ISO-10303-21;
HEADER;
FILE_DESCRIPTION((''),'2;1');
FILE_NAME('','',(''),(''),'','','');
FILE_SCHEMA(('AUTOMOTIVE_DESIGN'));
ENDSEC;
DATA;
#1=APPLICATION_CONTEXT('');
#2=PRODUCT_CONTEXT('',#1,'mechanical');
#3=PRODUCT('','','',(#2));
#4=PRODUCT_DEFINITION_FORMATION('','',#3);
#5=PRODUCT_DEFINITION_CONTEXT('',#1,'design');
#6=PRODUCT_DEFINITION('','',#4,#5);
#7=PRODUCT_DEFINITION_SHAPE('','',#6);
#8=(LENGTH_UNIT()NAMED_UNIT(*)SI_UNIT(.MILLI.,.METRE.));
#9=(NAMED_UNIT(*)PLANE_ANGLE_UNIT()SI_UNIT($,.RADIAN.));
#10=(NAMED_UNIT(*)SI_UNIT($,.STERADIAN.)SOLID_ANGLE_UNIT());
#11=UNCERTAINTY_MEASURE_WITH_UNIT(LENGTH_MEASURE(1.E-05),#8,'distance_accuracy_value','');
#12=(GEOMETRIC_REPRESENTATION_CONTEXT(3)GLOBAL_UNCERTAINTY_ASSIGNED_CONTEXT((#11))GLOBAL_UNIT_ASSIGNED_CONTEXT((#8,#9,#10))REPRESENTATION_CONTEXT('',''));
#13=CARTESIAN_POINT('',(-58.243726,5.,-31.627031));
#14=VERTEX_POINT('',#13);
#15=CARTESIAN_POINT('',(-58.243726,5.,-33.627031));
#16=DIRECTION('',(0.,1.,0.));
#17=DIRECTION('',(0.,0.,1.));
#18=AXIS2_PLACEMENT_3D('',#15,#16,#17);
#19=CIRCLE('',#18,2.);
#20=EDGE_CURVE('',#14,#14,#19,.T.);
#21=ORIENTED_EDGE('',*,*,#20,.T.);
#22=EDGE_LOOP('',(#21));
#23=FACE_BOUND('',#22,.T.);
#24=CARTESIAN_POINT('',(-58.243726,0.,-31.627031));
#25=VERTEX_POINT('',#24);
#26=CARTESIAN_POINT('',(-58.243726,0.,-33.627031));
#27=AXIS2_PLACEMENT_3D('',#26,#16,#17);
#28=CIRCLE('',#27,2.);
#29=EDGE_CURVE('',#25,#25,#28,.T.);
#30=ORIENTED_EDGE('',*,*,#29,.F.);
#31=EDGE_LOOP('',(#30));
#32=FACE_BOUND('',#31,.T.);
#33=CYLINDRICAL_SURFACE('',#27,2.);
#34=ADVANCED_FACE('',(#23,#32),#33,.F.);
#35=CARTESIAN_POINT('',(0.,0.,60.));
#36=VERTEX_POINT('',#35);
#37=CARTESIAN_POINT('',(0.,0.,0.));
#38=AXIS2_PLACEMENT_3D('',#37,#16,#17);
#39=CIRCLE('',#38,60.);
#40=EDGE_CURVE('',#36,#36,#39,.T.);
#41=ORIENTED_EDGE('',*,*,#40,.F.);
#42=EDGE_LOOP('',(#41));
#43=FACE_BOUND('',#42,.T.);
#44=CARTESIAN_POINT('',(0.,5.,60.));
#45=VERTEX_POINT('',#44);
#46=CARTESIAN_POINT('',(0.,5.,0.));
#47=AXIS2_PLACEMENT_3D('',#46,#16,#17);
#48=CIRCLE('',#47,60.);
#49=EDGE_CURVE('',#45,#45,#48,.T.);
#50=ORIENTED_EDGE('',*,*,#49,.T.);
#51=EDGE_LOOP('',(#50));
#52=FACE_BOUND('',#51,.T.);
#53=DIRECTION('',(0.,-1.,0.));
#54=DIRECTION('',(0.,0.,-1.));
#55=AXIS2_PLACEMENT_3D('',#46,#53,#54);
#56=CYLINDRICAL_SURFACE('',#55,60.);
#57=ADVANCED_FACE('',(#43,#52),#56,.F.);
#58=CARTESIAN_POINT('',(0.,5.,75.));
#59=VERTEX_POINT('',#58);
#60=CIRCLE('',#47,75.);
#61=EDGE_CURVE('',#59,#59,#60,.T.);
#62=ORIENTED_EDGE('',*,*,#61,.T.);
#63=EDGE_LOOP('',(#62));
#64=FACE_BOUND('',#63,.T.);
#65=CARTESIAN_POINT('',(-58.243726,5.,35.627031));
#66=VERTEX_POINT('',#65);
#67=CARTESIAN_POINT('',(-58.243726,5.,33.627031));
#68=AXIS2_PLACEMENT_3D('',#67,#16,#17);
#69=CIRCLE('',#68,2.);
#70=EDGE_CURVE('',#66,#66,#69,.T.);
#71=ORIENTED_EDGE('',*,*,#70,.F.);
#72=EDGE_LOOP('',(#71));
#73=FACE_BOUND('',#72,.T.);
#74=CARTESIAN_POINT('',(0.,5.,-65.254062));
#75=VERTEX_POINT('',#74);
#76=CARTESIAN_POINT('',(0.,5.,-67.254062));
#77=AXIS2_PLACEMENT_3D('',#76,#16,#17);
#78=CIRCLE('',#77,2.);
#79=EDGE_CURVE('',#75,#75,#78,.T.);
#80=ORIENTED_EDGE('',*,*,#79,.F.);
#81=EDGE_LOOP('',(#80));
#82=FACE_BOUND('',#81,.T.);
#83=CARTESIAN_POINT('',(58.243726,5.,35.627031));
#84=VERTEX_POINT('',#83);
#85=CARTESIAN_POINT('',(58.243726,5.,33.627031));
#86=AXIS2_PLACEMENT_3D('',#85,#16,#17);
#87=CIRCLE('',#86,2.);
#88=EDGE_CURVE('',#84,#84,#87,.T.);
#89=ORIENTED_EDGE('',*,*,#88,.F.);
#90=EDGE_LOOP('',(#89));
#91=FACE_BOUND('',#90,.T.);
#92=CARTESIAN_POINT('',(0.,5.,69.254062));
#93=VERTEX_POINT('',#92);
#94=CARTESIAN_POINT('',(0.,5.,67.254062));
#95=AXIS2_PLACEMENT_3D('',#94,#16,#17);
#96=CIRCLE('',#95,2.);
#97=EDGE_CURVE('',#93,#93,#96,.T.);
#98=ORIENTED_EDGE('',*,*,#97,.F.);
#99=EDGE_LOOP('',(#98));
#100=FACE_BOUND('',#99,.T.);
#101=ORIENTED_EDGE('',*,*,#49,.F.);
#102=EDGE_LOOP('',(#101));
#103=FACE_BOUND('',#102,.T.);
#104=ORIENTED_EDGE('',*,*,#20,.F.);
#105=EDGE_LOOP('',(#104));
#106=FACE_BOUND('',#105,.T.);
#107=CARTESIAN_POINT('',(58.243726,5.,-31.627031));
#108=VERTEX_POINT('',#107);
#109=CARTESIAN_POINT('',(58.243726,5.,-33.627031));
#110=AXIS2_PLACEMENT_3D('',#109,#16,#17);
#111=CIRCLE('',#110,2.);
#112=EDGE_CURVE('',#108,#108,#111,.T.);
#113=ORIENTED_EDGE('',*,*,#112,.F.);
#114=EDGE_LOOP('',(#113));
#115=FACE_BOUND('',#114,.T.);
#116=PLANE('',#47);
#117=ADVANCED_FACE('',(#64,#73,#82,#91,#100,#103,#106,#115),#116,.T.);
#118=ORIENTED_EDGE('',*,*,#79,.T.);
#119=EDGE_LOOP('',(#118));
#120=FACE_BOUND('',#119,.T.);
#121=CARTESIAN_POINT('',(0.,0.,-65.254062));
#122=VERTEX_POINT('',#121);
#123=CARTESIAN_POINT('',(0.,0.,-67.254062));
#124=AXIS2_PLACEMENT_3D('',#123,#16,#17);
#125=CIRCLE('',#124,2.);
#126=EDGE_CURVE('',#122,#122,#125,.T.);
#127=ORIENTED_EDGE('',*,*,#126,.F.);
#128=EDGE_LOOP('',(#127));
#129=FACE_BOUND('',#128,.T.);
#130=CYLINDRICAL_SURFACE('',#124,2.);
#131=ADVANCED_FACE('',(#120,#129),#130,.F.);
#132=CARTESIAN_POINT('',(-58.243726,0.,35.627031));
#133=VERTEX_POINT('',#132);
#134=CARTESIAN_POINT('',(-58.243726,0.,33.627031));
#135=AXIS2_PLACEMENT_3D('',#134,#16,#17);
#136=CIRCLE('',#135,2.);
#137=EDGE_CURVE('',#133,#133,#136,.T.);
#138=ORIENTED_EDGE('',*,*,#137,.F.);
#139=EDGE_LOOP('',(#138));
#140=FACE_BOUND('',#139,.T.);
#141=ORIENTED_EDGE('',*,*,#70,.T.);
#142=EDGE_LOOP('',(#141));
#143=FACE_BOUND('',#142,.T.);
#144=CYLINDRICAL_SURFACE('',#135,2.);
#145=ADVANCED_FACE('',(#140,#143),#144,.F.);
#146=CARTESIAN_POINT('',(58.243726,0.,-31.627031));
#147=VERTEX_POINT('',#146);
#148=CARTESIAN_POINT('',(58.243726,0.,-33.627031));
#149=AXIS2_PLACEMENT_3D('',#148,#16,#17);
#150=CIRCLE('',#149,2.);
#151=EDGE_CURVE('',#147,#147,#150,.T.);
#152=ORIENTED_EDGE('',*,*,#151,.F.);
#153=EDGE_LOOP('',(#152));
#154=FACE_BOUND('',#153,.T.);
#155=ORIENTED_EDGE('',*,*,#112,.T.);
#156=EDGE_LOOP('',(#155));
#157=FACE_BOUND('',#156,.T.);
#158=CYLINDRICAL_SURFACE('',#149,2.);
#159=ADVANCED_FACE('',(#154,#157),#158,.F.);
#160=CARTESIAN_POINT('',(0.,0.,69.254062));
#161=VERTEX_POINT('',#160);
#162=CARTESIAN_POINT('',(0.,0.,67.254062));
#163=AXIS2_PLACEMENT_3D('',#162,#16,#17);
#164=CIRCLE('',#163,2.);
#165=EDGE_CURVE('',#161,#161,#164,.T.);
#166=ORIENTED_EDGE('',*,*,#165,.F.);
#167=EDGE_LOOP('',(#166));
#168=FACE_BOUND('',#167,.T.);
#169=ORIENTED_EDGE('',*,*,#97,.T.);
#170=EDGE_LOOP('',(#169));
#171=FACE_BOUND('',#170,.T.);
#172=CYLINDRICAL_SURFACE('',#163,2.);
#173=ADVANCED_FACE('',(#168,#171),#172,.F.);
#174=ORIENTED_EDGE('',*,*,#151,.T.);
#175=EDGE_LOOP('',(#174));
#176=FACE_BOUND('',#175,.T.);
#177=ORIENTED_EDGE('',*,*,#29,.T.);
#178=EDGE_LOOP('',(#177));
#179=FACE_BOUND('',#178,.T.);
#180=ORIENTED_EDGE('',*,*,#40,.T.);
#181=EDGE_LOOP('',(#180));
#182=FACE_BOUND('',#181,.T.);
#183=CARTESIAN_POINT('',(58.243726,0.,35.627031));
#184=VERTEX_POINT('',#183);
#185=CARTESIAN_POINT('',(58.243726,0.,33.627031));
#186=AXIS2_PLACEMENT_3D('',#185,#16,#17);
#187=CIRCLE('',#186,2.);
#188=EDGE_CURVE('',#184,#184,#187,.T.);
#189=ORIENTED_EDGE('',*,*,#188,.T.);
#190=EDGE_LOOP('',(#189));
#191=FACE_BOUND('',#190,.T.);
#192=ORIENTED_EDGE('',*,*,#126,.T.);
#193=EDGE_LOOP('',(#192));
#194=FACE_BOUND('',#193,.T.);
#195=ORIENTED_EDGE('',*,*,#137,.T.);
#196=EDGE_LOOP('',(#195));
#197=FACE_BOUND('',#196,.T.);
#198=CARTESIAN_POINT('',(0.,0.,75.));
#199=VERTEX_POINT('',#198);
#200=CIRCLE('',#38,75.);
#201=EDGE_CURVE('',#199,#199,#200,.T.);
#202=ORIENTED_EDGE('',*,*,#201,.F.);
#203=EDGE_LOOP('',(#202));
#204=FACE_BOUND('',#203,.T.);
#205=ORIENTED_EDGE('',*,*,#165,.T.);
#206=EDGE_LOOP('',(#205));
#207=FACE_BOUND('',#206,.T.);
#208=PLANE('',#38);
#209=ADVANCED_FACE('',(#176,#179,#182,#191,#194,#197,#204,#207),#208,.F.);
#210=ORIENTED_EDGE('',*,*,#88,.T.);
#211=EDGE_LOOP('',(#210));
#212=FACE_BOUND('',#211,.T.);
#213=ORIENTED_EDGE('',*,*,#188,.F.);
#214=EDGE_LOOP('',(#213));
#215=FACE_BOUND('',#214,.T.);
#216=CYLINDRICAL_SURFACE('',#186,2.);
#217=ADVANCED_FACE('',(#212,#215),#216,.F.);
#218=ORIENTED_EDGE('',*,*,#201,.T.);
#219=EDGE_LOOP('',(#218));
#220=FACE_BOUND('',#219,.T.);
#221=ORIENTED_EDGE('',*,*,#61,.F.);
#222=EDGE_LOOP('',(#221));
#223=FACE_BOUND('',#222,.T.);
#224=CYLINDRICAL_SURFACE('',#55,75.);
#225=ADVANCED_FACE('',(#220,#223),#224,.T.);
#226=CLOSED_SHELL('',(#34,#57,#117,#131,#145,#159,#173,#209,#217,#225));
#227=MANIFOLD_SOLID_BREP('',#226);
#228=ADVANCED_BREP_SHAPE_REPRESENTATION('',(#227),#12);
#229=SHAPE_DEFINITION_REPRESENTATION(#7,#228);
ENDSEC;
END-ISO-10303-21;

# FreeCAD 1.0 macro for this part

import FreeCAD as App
import Part
import Sketcher
Q = App.Units.Quantity

doc = App.newDocument("Part")
body = doc.addObject("PartDesign::Body", "Body")

# Sketch on XZ plane
sketch1 = body.newObject("Sketcher::SketchObject", "Sketch")
sketch1.AttachmentSupport = (doc.getObject("XZ_Plane"), [""])
sketch1.MapMode = "FlatFace"
sketch1.addGeometry(Part.Circle(App.Vector(0, 0, 0), App.Vector(0, 0, 1), 75), False)
sketch1.addGeometry(Part.Circle(App.Vector(0, 0, 0), App.Vector(0, 0, 1), 60), False)
sketch1.addConstraint(Sketcher.Constraint("Coincident", 0, 3, -1, 1))
sketch1.addConstraint(Sketcher.Constraint("Coincident", 1, 3, -1, 1))
sketch1.addConstraint(Sketcher.Constraint("Diameter", 0, Q("150 mm")))
sketch1.addConstraint(Sketcher.Constraint("Diameter", 1, Q("120 mm")))
pad1 = body.newObject("PartDesign::Pad", "Pad")
pad1.Profile = sketch1
pad1.Length = 5
pad1.Reversed = True

# Sketch on XZ plane
sketch2 = body.newObject("Sketcher::SketchObject", "Sketch001")
sketch2.AttachmentSupport = (doc.getObject("XZ_Plane"), [""])
sketch2.MapMode = "FlatFace"
sketch2.AttachmentOffset = App.Placement(App.Vector(0, 0, -5), App.Rotation())
sketch2.addGeometry(Part.Circle(App.Vector(0, -67.254062, 0), App.Vector(0, 0, 1), 2), False)
sketch2.addGeometry(Part.Circle(App.Vector(58.243726, -33.627031, 0), App.Vector(0, 0, 1), 2), False)
sketch2.addGeometry(Part.Circle(App.Vector(58.243726, 33.627031, 0), App.Vector(0, 0, 1), 2), False)
sketch2.addGeometry(Part.Circle(App.Vector(0, 67.254062, 0), App.Vector(0, 0, 1), 2), False)
sketch2.addGeometry(Part.Circle(App.Vector(-58.243726, 33.627031, 0), App.Vector(0, 0, 1), 2), False)
sketch2.addGeometry(Part.Circle(App.Vector(-58.243726, -33.627031, 0), App.Vector(0, 0, 1), 2), False)
sketch2.addConstraint(Sketcher.Constraint("Equal", 0, 1))
sketch2.addConstraint(Sketcher.Constraint("Equal", 1, 2))
sketch2.addConstraint(Sketcher.Constraint("Equal", 2, 3))
sketch2.addConstraint(Sketcher.Constraint("Equal", 3, 4))
sketch2.addConstraint(Sketcher.Constraint("Equal", 4, 5))
sketch2.addConstraint(Sketcher.Constraint("Symmetric", 0, 3, 3, 3, -1, 1))
sketch2.addConstraint(Sketcher.Constraint("Symmetric", 1, 3, 4, 3, -1, 1))
sketch2.addConstraint(Sketcher.Constraint("Symmetric", 2, 3, 5, 3, -1, 1))
sketch2.addConstraint(Sketcher.Constraint("Symmetric", 2, 3, 4, 3, -2))
sketch2.addConstraint(Sketcher.Constraint("PointOnObject", 0, 3, -2))
sketch2.addConstraint(Sketcher.Constraint("Diameter", 0, Q("4 mm")))
sketch2.addConstraint(Sketcher.Constraint("DistanceY", 0, 3, -1, 1, Q("67.254062 mm")))
sketch2.addConstraint(Sketcher.Constraint("DistanceY", 1, 3, -1, 1, Q("33.627031 mm")))
sketch2.addConstraint(Sketcher.Constraint("DistanceX", -1, 1, 1, 3, Q("58.243726 mm")))
pocket1 = body.newObject("PartDesign::Pocket", "Pocket")
pocket1.Profile = sketch2
pocket1.Type = "ThroughAll"
pocket1.Reversed = True

doc.recompute()
